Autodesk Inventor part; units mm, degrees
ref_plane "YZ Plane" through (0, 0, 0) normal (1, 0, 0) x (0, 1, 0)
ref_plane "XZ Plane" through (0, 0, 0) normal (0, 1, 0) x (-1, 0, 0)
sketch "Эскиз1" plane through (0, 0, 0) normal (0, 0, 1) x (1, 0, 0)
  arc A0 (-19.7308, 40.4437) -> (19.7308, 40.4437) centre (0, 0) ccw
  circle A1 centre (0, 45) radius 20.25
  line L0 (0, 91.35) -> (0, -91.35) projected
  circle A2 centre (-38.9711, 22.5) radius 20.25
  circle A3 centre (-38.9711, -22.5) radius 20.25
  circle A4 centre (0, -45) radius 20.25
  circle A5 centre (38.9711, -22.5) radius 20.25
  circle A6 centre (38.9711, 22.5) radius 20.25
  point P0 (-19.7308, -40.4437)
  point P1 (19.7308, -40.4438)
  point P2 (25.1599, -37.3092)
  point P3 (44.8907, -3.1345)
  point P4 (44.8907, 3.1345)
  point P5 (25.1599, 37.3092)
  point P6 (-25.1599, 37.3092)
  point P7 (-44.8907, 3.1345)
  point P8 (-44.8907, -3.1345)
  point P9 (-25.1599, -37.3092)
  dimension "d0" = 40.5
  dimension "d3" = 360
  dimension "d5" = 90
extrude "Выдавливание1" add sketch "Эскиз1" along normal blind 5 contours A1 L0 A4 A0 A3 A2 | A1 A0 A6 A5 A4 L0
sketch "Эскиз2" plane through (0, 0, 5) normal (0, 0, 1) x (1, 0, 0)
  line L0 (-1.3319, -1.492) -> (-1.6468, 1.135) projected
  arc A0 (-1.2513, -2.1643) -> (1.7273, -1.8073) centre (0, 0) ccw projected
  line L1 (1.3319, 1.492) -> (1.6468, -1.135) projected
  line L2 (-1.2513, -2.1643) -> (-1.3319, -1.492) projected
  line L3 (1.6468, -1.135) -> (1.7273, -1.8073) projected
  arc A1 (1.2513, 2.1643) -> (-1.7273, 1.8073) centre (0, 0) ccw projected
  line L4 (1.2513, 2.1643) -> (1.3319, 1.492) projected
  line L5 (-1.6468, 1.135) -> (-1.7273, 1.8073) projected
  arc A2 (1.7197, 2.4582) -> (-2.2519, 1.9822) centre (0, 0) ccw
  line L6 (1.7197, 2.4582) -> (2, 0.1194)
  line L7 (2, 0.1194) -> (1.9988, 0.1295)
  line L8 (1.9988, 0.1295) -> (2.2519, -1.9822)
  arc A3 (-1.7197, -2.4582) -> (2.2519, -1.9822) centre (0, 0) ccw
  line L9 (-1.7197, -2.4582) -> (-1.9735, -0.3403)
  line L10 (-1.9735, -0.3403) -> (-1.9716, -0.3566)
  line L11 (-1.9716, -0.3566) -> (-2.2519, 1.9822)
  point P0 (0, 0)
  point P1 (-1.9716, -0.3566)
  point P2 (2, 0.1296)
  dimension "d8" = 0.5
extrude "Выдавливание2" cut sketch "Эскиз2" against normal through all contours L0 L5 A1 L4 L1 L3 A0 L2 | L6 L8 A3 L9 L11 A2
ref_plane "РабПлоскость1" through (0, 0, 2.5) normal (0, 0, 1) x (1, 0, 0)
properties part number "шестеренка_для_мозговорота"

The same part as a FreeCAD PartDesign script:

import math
import FreeCAD as App
import Part
import Sketcher
from FreeCAD import Vector
Q = App.Units.Quantity

doc = App.newDocument("Part")
body = doc.addObject("PartDesign::Body", "Body")

sketch1 = body.newObject("Sketcher::SketchObject", "Sketch")
sketch1.AttachmentSupport = (doc.getObject("XY_Plane"), [""])
sketch1.MapMode = "FlatFace"
sketch1.addGeometry([
    Part.ArcOfCircle(Part.Circle(Vector(0, 0, 0), Vector(0, 0, 1), 44.99997), math.radians(116.005824), math.radians(123.994197)),
    Part.ArcOfCircle(Part.Circle(Vector(-38.9711, 22.5, 0), Vector(0, 0, 1), 20.25), math.radians(-106.997161), math.radians(46.997106)),
    Part.ArcOfCircle(Part.Circle(Vector(0, 0, 0), Vector(0, 0, 1), 44.99997), math.radians(176.005749), math.radians(183.994251)),
    Part.ArcOfCircle(Part.Circle(Vector(-38.9711, -22.5, 0), Vector(0, 0, 1), 20.25), math.radians(-46.997106), math.radians(106.997161)),
    Part.ArcOfCircle(Part.Circle(Vector(0, 0, 0), Vector(0, 0, 1), 44.99997), math.radians(-123.994197), math.radians(-116.005765)),
    Part.ArcOfCircle(Part.Circle(Vector(0, -45, 0), Vector(0, 0, 1), 20.25), math.radians(13.002964), math.radians(166.997036)),
    Part.ArcOfCircle(Part.Circle(Vector(0, 0, 0), Vector(0, 0, 1), 44.99997), math.radians(-63.994235), math.radians(-56.005803)),
    Part.ArcOfCircle(Part.Circle(Vector(38.9711, -22.5, 0), Vector(0, 0, 1), 20.25), math.radians(73.002839), math.radians(226.997106)),
    Part.ArcOfCircle(Part.Circle(Vector(0, 0, 0), Vector(0, 0, 1), 44.99997), math.radians(-3.994251), math.radians(3.994251)),
    Part.ArcOfCircle(Part.Circle(Vector(38.9711, 22.5, 0), Vector(0, 0, 1), 20.25), math.radians(133.002894), math.radians(286.997161)),
    Part.ArcOfCircle(Part.Circle(Vector(0, 0, 0), Vector(0, 0, 1), 44.99997), math.radians(56.005803), math.radians(63.994176)),
    Part.ArcOfCircle(Part.Circle(Vector(0, 45, 0), Vector(0, 0, 1), 20.25), math.radians(-166.997006), math.radians(-13.002994)),
], False)
sketch1.addConstraint([
    Sketcher.Constraint("Coincident", 0, 2, 1, 2),
    Sketcher.Constraint("Coincident", 1, 1, 2, 1),
    Sketcher.Constraint("Coincident", 2, 2, 3, 2),
    Sketcher.Constraint("Coincident", 3, 1, 4, 1),
    Sketcher.Constraint("Coincident", 4, 2, 5, 2),
    Sketcher.Constraint("Coincident", 5, 1, 6, 1),
    Sketcher.Constraint("Coincident", 6, 2, 7, 2),
    Sketcher.Constraint("Coincident", 7, 1, 8, 1),
    Sketcher.Constraint("Coincident", 8, 2, 9, 2),
    Sketcher.Constraint("Coincident", 9, 1, 10, 1),
    Sketcher.Constraint("Coincident", 10, 2, 11, 2),
    Sketcher.Constraint("Coincident", 11, 1, 0, 1),
    Sketcher.Constraint("Coincident", 0, 3, -1, 1),
    Sketcher.Constraint("Coincident", 2, 3, -1, 1),
    Sketcher.Constraint("Coincident", 4, 3, -1, 1),
    Sketcher.Constraint("Coincident", 6, 3, -1, 1),
    Sketcher.Constraint("Coincident", 8, 3, -1, 1),
    Sketcher.Constraint("Coincident", 10, 3, -1, 1),
    Sketcher.Constraint("Equal", 0, 2),
    Sketcher.Constraint("Equal", 1, 3),
    Sketcher.Constraint("Equal", 2, 4),
    Sketcher.Constraint("Equal", 3, 5),
    Sketcher.Constraint("Equal", 4, 6),
    Sketcher.Constraint("Equal", 5, 7),
    Sketcher.Constraint("Equal", 6, 8),
    Sketcher.Constraint("Equal", 7, 9),
    Sketcher.Constraint("Equal", 8, 10),
    Sketcher.Constraint("Equal", 9, 11),
    Sketcher.Constraint("Symmetric", 1, 3, 7, 3, -1, 1),
    Sketcher.Constraint("Symmetric", 3, 3, 9, 3, -1, 1),
    Sketcher.Constraint("Symmetric", 5, 3, 11, 3, -1, 1),
    Sketcher.Constraint("Symmetric", 3, 3, 7, 3, -2),
    Sketcher.Constraint("PointOnObject", 5, 3, -2),
    Sketcher.Constraint("Radius", 0, Q("45 mm")),
    Sketcher.Constraint("Radius", 1, Q("20.25 mm")),
    Sketcher.Constraint("DistanceY", 5, 3, -1, 1, Q("45 mm")),
    Sketcher.Constraint("DistanceY", 3, 3, 1, 3, Q("45 mm")),
    Sketcher.Constraint("DistanceX", 0, 2, -1, 1, Q("25.16 mm")),
])
pad1 = body.newObject("PartDesign::Pad", "Pad")
pad1.Profile = sketch1
pad1.Length = 5

sketch2 = body.newObject("Sketcher::SketchObject", "Sketch001")
sketch2.AttachmentSupport = (doc.getObject("XY_Plane"), [""])
sketch2.MapMode = "FlatFace"
sketch2.AttachmentOffset = App.Placement(Vector(0, 0, 5), App.Rotation())
sketch2.addGeometry([
    Part.ArcOfCircle(Part.Circle(Vector(0, 0, 0), Vector(0, 0, 1), 3.000019), math.radians(55.024252), math.radians(138.644653)),
    Part.LineSegment(Vector(-2.2519, 1.9822, 0), Vector(-1.973553, -0.340306, 0)),
    Part.LineSegment(Vector(-1.9735, -0.3403, 0), Vector(-1.7197, -2.4582, 0)),
    Part.ArcOfCircle(Part.Circle(Vector(0, 0, 0), Vector(0, 0, 1), 3.000019), math.radians(-124.975748), math.radians(-41.355347)),
    Part.LineSegment(Vector(2.2519, -1.9822, 0), Vector(2.00001, 0.119401, 0)),
    Part.LineSegment(Vector(2, 0.1194, 0), Vector(1.7197, 2.4582, 0)),
], False)
sketch2.addConstraint([
    Sketcher.Constraint("Coincident", 0, 2, 1, 1),
    Sketcher.Constraint("Coincident", 1, 2, 2, 1),
    Sketcher.Constraint("Coincident", 2, 2, 3, 1),
    Sketcher.Constraint("Coincident", 3, 2, 4, 1),
    Sketcher.Constraint("Coincident", 4, 2, 5, 1),
    Sketcher.Constraint("Coincident", 5, 2, 0, 1),
    Sketcher.Constraint("Coincident", 0, 3, -1, 1),
    Sketcher.Constraint("Coincident", 3, 3, -1, 1),
    Sketcher.Constraint("Radius", 0, Q("3 mm")),
    Sketcher.Constraint("Radius", 3, Q("3 mm")),
    Sketcher.Constraint("DistanceX", -1, 1, 4, 2, Q("2 mm")),
    Sketcher.Constraint("Distance", 2, Q("2.133 mm")),
    Sketcher.Constraint("DistanceX", 0, 2, -1, 1, Q("2.252 mm")),
    Sketcher.Constraint("DistanceX", -1, 1, 3, 2, Q("2.252 mm")),
    Sketcher.Constraint("DistanceY", 2, 2, 1, 2, Q("2.118 mm")),
    Sketcher.Constraint("DistanceY", 2, 2, 3, 2, Q("0.476 mm")),
    Sketcher.Constraint("DistanceY", 0, 2, 5, 2, Q("0.476 mm")),
    Sketcher.Constraint("Distance", 4, Q("2.1166 mm")),
])
pocket1 = body.newObject("PartDesign::Pocket", "Pocket")
pocket1.Profile = sketch2
pocket1.Type = "ThroughAll"

doc.recompute()
